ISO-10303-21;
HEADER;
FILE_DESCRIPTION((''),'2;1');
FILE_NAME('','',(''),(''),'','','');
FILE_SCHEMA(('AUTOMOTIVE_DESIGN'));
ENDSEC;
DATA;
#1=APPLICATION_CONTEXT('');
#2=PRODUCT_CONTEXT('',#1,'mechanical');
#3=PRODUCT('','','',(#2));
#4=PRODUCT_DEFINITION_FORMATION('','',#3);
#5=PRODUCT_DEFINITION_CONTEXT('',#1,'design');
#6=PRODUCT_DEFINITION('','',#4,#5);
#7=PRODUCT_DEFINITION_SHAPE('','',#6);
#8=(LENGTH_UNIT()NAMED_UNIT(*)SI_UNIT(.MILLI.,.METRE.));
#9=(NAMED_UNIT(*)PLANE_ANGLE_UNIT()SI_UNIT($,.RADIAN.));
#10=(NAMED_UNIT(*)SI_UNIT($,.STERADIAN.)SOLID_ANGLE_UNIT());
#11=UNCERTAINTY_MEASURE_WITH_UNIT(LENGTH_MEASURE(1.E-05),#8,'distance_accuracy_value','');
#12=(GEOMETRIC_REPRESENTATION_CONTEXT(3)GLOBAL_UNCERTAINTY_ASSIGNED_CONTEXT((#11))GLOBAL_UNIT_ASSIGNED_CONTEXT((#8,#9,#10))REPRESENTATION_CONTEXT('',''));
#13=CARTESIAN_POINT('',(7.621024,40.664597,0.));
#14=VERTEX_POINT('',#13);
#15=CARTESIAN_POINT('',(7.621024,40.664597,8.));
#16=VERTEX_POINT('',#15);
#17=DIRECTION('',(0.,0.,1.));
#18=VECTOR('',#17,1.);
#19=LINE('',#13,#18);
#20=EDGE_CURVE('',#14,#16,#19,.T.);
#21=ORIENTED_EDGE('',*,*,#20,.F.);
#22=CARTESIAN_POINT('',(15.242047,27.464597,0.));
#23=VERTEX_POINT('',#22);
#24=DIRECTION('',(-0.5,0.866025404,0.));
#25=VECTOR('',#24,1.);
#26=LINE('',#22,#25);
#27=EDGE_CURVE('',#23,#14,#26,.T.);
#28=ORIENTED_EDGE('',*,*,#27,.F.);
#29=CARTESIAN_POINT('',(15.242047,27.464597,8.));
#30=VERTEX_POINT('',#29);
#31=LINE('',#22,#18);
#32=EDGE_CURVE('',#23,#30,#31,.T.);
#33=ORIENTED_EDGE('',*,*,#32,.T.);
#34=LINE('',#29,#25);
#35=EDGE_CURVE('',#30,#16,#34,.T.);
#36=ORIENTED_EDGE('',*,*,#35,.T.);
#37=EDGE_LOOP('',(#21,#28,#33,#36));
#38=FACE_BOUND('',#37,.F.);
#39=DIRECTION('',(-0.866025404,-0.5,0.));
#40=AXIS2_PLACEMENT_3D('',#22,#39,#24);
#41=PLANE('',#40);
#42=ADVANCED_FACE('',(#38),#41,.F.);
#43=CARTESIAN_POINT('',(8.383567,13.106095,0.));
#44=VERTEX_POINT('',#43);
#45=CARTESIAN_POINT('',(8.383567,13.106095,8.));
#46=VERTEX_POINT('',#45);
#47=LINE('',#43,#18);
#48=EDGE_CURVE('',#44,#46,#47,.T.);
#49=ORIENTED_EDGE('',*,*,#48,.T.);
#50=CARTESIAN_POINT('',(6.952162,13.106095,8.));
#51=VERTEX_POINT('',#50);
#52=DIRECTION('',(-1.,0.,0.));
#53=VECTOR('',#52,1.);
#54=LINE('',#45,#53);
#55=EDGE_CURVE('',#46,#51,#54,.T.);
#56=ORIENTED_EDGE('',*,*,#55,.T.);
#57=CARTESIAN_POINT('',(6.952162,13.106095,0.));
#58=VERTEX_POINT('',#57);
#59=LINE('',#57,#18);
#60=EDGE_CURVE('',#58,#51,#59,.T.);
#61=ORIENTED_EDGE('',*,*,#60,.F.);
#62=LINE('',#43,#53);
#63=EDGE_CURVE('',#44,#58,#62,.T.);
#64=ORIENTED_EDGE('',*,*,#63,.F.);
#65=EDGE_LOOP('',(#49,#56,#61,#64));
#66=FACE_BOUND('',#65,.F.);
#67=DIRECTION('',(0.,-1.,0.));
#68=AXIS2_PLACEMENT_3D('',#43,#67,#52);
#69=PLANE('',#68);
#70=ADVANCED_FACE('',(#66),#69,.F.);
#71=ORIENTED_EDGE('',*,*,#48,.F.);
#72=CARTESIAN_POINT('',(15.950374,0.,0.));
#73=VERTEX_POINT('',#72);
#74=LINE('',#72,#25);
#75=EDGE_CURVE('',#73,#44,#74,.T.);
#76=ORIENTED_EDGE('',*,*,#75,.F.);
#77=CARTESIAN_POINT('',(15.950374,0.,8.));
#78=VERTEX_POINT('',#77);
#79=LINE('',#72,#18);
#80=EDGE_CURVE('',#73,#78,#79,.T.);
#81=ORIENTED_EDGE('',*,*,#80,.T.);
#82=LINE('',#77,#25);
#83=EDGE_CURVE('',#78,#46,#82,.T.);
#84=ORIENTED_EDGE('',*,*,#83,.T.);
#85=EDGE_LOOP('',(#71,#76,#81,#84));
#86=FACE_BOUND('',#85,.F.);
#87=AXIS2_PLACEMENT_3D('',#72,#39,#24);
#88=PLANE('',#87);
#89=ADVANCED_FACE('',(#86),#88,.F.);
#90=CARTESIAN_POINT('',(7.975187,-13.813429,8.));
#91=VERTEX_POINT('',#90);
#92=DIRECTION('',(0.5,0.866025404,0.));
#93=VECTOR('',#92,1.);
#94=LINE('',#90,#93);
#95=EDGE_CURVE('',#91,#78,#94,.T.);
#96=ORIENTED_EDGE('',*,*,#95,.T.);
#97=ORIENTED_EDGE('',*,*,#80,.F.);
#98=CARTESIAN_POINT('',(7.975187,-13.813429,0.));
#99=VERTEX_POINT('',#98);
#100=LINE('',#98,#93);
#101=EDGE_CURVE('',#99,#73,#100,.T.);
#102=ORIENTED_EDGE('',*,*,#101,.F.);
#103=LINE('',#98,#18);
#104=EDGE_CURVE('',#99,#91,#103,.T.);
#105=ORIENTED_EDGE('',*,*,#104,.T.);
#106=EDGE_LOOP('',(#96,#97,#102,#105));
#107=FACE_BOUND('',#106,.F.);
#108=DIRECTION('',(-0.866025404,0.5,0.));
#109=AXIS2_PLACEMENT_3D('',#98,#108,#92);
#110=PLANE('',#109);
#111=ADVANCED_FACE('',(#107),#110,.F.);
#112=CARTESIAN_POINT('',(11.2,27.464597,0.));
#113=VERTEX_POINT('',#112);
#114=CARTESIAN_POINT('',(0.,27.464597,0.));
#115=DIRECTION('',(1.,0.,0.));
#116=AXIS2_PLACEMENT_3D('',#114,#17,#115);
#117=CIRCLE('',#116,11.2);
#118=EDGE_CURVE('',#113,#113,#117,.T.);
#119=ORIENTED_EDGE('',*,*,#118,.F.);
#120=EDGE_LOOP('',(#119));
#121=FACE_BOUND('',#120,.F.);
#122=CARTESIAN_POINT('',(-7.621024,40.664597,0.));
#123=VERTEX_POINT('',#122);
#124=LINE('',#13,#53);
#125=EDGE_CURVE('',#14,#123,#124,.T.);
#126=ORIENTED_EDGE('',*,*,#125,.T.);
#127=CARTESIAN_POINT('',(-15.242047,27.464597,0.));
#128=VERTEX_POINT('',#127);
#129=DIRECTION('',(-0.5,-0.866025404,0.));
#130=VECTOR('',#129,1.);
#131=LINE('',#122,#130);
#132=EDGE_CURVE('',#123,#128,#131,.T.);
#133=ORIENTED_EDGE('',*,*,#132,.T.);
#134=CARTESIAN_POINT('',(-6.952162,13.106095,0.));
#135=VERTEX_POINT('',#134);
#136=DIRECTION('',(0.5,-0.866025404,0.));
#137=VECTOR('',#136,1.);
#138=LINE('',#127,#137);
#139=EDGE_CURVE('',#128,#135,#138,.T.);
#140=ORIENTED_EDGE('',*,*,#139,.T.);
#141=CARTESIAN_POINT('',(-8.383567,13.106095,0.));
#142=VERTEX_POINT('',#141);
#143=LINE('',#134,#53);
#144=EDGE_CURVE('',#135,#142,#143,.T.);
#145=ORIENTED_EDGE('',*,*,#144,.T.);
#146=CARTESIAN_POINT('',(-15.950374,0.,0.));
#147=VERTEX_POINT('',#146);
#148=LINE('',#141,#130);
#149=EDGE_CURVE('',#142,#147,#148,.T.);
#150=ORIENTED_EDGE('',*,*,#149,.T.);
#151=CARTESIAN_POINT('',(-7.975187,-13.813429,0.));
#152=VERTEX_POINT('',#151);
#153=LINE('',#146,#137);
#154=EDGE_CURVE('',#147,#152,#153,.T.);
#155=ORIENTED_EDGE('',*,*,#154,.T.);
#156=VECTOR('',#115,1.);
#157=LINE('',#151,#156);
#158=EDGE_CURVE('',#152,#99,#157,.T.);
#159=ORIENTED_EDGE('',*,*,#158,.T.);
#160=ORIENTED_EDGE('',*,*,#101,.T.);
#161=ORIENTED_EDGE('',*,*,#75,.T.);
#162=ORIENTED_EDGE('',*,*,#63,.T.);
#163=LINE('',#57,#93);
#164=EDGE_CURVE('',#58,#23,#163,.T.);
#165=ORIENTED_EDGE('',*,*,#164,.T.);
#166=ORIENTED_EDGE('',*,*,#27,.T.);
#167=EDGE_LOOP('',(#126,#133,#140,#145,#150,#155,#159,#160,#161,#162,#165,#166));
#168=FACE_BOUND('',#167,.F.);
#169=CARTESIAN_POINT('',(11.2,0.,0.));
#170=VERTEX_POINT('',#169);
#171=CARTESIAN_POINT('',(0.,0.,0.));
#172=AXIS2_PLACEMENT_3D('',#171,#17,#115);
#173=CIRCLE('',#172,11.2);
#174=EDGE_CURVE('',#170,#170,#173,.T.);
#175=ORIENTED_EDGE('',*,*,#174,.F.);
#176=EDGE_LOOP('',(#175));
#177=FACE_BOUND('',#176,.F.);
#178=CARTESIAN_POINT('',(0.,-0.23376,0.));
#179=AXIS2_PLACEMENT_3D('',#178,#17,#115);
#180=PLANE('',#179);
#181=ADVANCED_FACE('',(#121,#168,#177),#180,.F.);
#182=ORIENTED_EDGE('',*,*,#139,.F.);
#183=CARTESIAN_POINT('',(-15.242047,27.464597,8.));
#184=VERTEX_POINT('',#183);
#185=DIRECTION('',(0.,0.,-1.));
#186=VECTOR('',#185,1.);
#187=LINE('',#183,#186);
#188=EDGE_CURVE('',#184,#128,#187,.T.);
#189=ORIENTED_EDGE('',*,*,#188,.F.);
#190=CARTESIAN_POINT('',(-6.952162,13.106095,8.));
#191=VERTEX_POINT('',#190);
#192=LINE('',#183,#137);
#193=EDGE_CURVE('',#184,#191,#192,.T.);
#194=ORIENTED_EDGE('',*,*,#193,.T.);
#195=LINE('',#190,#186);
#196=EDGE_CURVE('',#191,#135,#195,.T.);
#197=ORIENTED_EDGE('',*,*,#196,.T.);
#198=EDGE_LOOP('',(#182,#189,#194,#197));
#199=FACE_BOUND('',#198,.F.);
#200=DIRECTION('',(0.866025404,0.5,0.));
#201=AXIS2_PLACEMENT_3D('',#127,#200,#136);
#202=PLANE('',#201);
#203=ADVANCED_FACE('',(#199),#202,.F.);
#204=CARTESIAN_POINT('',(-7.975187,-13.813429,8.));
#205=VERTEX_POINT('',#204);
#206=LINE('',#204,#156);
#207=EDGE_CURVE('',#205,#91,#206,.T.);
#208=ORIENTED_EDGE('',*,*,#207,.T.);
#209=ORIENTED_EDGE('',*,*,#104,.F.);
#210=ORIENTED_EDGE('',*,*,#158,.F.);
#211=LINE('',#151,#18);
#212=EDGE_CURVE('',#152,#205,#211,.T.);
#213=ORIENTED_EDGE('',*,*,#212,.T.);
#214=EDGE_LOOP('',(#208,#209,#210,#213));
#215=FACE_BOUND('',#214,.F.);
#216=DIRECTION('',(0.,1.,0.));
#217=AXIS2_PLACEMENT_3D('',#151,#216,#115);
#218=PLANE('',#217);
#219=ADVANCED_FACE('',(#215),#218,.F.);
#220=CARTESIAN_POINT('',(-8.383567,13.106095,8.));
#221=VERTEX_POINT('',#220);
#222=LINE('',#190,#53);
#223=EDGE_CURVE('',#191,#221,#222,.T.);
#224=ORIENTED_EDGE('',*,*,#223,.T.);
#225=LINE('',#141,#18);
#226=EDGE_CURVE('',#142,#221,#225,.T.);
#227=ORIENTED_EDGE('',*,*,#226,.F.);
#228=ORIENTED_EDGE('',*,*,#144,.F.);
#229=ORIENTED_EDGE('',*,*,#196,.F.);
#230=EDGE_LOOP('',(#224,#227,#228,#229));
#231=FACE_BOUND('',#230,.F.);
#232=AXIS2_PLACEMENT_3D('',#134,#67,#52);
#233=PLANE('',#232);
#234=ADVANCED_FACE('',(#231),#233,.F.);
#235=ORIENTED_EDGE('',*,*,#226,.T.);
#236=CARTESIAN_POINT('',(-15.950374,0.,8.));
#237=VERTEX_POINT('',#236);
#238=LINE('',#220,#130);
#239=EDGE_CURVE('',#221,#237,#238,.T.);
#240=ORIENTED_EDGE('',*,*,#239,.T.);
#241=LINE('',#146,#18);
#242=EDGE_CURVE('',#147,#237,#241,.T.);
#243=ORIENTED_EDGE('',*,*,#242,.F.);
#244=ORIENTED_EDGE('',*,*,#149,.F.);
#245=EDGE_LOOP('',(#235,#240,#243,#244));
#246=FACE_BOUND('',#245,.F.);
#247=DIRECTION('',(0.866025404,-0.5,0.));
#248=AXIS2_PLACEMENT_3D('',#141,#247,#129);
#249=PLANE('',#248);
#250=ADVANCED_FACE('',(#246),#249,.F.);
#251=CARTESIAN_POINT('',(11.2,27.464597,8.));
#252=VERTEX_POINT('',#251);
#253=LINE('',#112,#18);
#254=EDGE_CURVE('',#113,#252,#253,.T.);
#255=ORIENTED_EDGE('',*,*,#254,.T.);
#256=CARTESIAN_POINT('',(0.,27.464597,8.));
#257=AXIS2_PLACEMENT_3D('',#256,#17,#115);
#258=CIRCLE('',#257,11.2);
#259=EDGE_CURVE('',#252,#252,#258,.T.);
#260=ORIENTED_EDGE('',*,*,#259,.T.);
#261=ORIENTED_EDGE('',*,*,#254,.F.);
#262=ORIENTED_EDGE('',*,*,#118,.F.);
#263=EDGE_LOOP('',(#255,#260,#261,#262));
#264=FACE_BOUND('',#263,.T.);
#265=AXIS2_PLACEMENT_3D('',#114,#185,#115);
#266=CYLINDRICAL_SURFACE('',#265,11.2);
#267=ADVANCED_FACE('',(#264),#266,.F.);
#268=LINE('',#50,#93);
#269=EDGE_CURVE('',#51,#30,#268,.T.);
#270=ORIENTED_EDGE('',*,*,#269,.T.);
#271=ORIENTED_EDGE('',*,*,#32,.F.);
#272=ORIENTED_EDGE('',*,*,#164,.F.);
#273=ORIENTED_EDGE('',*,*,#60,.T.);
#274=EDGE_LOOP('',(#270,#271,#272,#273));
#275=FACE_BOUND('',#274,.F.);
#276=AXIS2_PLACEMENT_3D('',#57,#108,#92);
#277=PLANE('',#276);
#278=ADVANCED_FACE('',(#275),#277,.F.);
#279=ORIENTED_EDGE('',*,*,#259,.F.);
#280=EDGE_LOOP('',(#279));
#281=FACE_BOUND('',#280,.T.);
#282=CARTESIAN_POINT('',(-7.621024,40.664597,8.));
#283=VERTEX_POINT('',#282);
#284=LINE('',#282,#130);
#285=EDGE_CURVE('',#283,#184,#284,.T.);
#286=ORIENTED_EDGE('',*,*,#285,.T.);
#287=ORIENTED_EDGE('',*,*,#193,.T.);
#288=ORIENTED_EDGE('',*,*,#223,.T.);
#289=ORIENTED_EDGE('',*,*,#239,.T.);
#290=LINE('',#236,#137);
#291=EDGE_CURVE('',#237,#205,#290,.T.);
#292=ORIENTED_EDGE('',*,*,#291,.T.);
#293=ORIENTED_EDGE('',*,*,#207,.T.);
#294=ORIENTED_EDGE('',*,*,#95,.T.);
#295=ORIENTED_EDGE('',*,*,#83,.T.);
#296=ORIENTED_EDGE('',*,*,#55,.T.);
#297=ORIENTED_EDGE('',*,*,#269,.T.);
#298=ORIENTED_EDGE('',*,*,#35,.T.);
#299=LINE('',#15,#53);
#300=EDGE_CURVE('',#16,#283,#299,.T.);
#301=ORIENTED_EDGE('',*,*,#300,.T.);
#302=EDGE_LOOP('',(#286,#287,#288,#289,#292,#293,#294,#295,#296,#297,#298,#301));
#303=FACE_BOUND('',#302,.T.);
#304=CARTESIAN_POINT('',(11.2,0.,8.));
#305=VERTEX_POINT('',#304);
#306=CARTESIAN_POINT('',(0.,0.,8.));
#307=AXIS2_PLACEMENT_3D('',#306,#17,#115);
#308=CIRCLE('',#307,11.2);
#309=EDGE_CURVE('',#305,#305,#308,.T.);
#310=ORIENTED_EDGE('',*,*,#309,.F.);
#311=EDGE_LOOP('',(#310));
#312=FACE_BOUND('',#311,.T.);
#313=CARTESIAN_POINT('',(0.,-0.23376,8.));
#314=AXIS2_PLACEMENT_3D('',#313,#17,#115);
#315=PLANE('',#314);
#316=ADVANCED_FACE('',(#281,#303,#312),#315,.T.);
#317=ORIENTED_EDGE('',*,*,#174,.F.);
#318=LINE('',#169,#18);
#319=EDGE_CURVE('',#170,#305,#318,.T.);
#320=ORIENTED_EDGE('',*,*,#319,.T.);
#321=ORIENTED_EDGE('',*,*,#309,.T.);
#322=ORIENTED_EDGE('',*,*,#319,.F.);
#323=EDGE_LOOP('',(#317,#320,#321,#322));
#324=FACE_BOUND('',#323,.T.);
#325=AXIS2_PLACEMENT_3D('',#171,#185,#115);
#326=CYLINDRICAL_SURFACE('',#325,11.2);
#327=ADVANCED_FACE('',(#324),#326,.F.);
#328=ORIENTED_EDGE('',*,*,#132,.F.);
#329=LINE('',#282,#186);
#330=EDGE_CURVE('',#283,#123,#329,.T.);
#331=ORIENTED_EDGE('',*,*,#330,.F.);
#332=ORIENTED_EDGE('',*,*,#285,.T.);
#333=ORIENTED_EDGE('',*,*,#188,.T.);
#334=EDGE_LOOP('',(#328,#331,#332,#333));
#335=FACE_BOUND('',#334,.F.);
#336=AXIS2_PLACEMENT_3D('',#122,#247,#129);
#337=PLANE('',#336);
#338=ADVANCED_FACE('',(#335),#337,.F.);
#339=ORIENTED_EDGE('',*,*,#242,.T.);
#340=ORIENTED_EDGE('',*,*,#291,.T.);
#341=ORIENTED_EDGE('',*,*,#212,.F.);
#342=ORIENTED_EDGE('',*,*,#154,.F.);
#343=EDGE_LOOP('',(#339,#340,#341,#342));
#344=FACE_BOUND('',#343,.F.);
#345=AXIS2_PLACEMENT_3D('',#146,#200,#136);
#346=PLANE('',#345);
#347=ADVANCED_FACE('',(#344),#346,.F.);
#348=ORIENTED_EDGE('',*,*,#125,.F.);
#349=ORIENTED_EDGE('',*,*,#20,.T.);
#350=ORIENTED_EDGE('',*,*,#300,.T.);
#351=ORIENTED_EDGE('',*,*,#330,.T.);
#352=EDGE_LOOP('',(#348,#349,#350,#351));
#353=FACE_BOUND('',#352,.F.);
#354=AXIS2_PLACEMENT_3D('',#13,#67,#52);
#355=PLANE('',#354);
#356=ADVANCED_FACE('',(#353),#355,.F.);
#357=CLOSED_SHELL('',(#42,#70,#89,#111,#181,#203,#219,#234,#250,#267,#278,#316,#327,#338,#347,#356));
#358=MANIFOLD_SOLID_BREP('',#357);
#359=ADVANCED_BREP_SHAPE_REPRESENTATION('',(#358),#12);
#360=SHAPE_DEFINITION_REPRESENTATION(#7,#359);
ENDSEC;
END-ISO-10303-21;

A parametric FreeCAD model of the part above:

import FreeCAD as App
import Part
import Sketcher
Q = App.Units.Quantity

doc = App.newDocument("Part")
body = doc.addObject("PartDesign::Body", "Body")

# Sketch on XY plane
sketch1 = doc.addObject("Sketcher::SketchObject", "Sketch")
body.addObject(sketch1)
sketch1.AttachmentSupport = (doc.XY_Plane, [""])
sketch1.MapMode = "FlatFace"
sketch1.addGeometry([
    Part.LineSegment(App.Vector(-7, 13.1, 0), App.Vector(-8.4, 13.1, 0)),  # 0
    Part.LineSegment(App.Vector(-8.4, 13.1, 0), App.Vector(-16, 0, 0)),  # 1
    Part.LineSegment(App.Vector(-16, 0, 0), App.Vector(-8, -13.8, 0)),  # 2
    Part.LineSegment(App.Vector(-8, -13.8, 0), App.Vector(8, -13.8, 0)),  # 3
    Part.LineSegment(App.Vector(8, -13.8, 0), App.Vector(16, 0, 0)),  # 4
    Part.LineSegment(App.Vector(16, 0, 0), App.Vector(8.4, 13.1, 0)),  # 5
    Part.LineSegment(App.Vector(8.4, 13.1, 0), App.Vector(7, 13.1, 0)),  # 6
    Part.LineSegment(App.Vector(7, 13.1, 0), App.Vector(15.2, 27.5, 0)),  # 7
    Part.LineSegment(App.Vector(15.2, 27.5, 0), App.Vector(7.6, 40.7, 0)),  # 8
    Part.LineSegment(App.Vector(7.6, 40.7, 0), App.Vector(-7.6, 40.7, 0)),  # 9
    Part.LineSegment(App.Vector(-7.6, 40.7, 0), App.Vector(-15.2, 27.5, 0)),  # 10
    Part.LineSegment(App.Vector(-15.2, 27.5, 0), App.Vector(-7, 13.1, 0)),  # 11
    Part.Circle(App.Vector(0, 0, 0), App.Vector(0, 0, 1), 11.2),  # 12
    Part.Circle(App.Vector(0, 27.5, 0), App.Vector(0, 0, 1), 11.2),  # 13
], False)
sketch1.addConstraint([
    Sketcher.Constraint("Coincident", 0, 2, 1, 1),
    Sketcher.Constraint("Coincident", 1, 2, 2, 1),
    Sketcher.Constraint("Coincident", 2, 2, 3, 1),
    Sketcher.Constraint("Coincident", 3, 2, 4, 1),
    Sketcher.Constraint("Coincident", 4, 2, 5, 1),
    Sketcher.Constraint("Coincident", 5, 2, 6, 1),
    Sketcher.Constraint("Coincident", 6, 2, 7, 1),
    Sketcher.Constraint("Coincident", 7, 2, 8, 1),
    Sketcher.Constraint("Coincident", 8, 2, 9, 1),
    Sketcher.Constraint("Coincident", 9, 2, 10, 1),
    Sketcher.Constraint("Coincident", 10, 2, 11, 1),
    Sketcher.Constraint("Coincident", 11, 2, 0, 1),
    Sketcher.Constraint("Horizontal", 0),
    Sketcher.Constraint("Horizontal", 3),
    Sketcher.Constraint("Horizontal", 6),
    Sketcher.Constraint("Horizontal", 9),
    Sketcher.Constraint("Coincident", 12, 3, -1, 1),
    Sketcher.Constraint("Equal", 12, 13),
    Sketcher.Constraint("Symmetric", 1, 2, 4, 2, -1, 1),
    Sketcher.Constraint("Symmetric", 0, 2, 5, 2, -2),
    Sketcher.Constraint("Symmetric", 7, 2, 10, 2, -2),
    Sketcher.Constraint("PointOnObject", 13, 3, -2),
    Sketcher.Constraint("PointOnObject", 1, 2, -1),
    Sketcher.Constraint("Parallel", 1, 4),
    Sketcher.Constraint("Parallel", 2, 5),
    Sketcher.Constraint("Parallel", 4, 7),
    Sketcher.Constraint("Parallel", 5, 8),
    Sketcher.Constraint("Parallel", 7, 10),
    Sketcher.Constraint("Parallel", 8, 11),
    Sketcher.Constraint("Horizontal", 13, 3, 7, 2),
    Sketcher.Constraint("Diameter", 12, Q("22.4 mm")),
    Sketcher.Constraint("Angle", 1, Q("-120 deg")),
    Sketcher.Constraint("DistanceY", 13, 3, 8, 2, Q("13.2 mm")),
    Sketcher.Constraint("Distance", 7, Q("16.57977 mm")),
    Sketcher.Constraint("DistanceX", 0, 2, 0, 1, Q("1.431405 mm")),
    Sketcher.Constraint("DistanceX", 3, 1, 3, 2, Q("15.950374 mm")),
    Sketcher.Constraint("DistanceX", 9, 2, 9, 1, Q("15.242047 mm")),
    Sketcher.Constraint("DistanceY", 2, 2, -1, 1, Q("13.813429 mm")),
])
pad1 = doc.addObject("PartDesign::Pad", "Pad")
body.addObject(pad1)
pad1.Profile = sketch1
pad1.Length = 7

# Sketch on XY plane
sketch2 = doc.addObject("Sketcher::SketchObject", "Sketch001")
body.addObject(sketch2)
sketch2.AttachmentSupport = (doc.XY_Plane, [""])
sketch2.MapMode = "FlatFace"
sketch2.addGeometry([
    Part.LineSegment(App.Vector(-7, 13.1, 0), App.Vector(-8.4, 13.1, 0)),  # 0
    Part.LineSegment(App.Vector(-8.4, 13.1, 0), App.Vector(-16, 0, 0)),  # 1
    Part.LineSegment(App.Vector(-16, 0, 0), App.Vector(-8, -13.8, 0)),  # 2
    Part.LineSegment(App.Vector(-8, -13.8, 0), App.Vector(8, -13.8, 0)),  # 3
    Part.LineSegment(App.Vector(8, -13.8, 0), App.Vector(16, 0, 0)),  # 4
    Part.LineSegment(App.Vector(16, 0, 0), App.Vector(8.4, 13.1, 0)),  # 5
    Part.LineSegment(App.Vector(8.4, 13.1, 0), App.Vector(7, 13.1, 0)),  # 6
    Part.LineSegment(App.Vector(7, 13.1, 0), App.Vector(15.2, 27.5, 0)),  # 7
    Part.LineSegment(App.Vector(15.2, 27.5, 0), App.Vector(7.6, 40.7, 0)),  # 8
    Part.LineSegment(App.Vector(7.6, 40.7, 0), App.Vector(-7.6, 40.7, 0)),  # 9
    Part.LineSegment(App.Vector(-7.6, 40.7, 0), App.Vector(-15.2, 27.5, 0)),  # 10
    Part.LineSegment(App.Vector(-15.2, 27.5, 0), App.Vector(-7, 13.1, 0)),  # 11
    Part.Circle(App.Vector(0, 0, 0), App.Vector(0, 0, 1), 11.2),  # 12
    Part.Circle(App.Vector(0, 27.5, 0), App.Vector(0, 0, 1), 11.2),  # 13
], False)
sketch2.addConstraint([
    Sketcher.Constraint("Coincident", 0, 2, 1, 1),
    Sketcher.Constraint("Coincident", 1, 2, 2, 1),
    Sketcher.Constraint("Coincident", 2, 2, 3, 1),
    Sketcher.Constraint("Coincident", 3, 2, 4, 1),
    Sketcher.Constraint("Coincident", 4, 2, 5, 1),
    Sketcher.Constraint("Coincident", 5, 2, 6, 1),
    Sketcher.Constraint("Coincident", 6, 2, 7, 1),
    Sketcher.Constraint("Coincident", 7, 2, 8, 1),
    Sketcher.Constraint("Coincident", 8, 2, 9, 1),
    Sketcher.Constraint("Coincident", 9, 2, 10, 1),
    Sketcher.Constraint("Coincident", 10, 2, 11, 1),
    Sketcher.Constraint("Coincident", 11, 2, 0, 1),
    Sketcher.Constraint("Horizontal", 0),
    Sketcher.Constraint("Horizontal", 3),
    Sketcher.Constraint("Horizontal", 6),
    Sketcher.Constraint("Horizontal", 9),
    Sketcher.Constraint("Coincident", 12, 3, -1, 1),
    Sketcher.Constraint("Equal", 12, 13),
    Sketcher.Constraint("Symmetric", 1, 2, 4, 2, -1, 1),
    Sketcher.Constraint("Symmetric", 0, 2, 5, 2, -2),
    Sketcher.Constraint("Symmetric", 7, 2, 10, 2, -2),
    Sketcher.Constraint("PointOnObject", 13, 3, -2),
    Sketcher.Constraint("PointOnObject", 1, 2, -1),
    Sketcher.Constraint("Parallel", 1, 4),
    Sketcher.Constraint("Parallel", 2, 5),
    Sketcher.Constraint("Parallel", 4, 7),
    Sketcher.Constraint("Parallel", 5, 8),
    Sketcher.Constraint("Parallel", 7, 10),
    Sketcher.Constraint("Parallel", 8, 11),
    Sketcher.Constraint("Horizontal", 13, 3, 7, 2),
    Sketcher.Constraint("Diameter", 12, Q("22.4 mm")),
    Sketcher.Constraint("Angle", 1, Q("-120 deg")),
    Sketcher.Constraint("DistanceY", 13, 3, 8, 2, Q("13.2 mm")),
    Sketcher.Constraint("Distance", 7, Q("16.57977 mm")),
    Sketcher.Constraint("DistanceX", 0, 2, 0, 1, Q("1.431405 mm")),
    Sketcher.Constraint("DistanceX", 3, 1, 3, 2, Q("15.950374 mm")),
    Sketcher.Constraint("DistanceX", 9, 2, 9, 1, Q("15.242047 mm")),
    Sketcher.Constraint("DistanceY", 2, 2, -1, 1, Q("13.813429 mm")),
])
pad2 = doc.addObject("PartDesign::Pad", "Pad001")
body.addObject(pad2)
pad2.Profile = sketch2
pad2.Length = 8

doc.recompute()
